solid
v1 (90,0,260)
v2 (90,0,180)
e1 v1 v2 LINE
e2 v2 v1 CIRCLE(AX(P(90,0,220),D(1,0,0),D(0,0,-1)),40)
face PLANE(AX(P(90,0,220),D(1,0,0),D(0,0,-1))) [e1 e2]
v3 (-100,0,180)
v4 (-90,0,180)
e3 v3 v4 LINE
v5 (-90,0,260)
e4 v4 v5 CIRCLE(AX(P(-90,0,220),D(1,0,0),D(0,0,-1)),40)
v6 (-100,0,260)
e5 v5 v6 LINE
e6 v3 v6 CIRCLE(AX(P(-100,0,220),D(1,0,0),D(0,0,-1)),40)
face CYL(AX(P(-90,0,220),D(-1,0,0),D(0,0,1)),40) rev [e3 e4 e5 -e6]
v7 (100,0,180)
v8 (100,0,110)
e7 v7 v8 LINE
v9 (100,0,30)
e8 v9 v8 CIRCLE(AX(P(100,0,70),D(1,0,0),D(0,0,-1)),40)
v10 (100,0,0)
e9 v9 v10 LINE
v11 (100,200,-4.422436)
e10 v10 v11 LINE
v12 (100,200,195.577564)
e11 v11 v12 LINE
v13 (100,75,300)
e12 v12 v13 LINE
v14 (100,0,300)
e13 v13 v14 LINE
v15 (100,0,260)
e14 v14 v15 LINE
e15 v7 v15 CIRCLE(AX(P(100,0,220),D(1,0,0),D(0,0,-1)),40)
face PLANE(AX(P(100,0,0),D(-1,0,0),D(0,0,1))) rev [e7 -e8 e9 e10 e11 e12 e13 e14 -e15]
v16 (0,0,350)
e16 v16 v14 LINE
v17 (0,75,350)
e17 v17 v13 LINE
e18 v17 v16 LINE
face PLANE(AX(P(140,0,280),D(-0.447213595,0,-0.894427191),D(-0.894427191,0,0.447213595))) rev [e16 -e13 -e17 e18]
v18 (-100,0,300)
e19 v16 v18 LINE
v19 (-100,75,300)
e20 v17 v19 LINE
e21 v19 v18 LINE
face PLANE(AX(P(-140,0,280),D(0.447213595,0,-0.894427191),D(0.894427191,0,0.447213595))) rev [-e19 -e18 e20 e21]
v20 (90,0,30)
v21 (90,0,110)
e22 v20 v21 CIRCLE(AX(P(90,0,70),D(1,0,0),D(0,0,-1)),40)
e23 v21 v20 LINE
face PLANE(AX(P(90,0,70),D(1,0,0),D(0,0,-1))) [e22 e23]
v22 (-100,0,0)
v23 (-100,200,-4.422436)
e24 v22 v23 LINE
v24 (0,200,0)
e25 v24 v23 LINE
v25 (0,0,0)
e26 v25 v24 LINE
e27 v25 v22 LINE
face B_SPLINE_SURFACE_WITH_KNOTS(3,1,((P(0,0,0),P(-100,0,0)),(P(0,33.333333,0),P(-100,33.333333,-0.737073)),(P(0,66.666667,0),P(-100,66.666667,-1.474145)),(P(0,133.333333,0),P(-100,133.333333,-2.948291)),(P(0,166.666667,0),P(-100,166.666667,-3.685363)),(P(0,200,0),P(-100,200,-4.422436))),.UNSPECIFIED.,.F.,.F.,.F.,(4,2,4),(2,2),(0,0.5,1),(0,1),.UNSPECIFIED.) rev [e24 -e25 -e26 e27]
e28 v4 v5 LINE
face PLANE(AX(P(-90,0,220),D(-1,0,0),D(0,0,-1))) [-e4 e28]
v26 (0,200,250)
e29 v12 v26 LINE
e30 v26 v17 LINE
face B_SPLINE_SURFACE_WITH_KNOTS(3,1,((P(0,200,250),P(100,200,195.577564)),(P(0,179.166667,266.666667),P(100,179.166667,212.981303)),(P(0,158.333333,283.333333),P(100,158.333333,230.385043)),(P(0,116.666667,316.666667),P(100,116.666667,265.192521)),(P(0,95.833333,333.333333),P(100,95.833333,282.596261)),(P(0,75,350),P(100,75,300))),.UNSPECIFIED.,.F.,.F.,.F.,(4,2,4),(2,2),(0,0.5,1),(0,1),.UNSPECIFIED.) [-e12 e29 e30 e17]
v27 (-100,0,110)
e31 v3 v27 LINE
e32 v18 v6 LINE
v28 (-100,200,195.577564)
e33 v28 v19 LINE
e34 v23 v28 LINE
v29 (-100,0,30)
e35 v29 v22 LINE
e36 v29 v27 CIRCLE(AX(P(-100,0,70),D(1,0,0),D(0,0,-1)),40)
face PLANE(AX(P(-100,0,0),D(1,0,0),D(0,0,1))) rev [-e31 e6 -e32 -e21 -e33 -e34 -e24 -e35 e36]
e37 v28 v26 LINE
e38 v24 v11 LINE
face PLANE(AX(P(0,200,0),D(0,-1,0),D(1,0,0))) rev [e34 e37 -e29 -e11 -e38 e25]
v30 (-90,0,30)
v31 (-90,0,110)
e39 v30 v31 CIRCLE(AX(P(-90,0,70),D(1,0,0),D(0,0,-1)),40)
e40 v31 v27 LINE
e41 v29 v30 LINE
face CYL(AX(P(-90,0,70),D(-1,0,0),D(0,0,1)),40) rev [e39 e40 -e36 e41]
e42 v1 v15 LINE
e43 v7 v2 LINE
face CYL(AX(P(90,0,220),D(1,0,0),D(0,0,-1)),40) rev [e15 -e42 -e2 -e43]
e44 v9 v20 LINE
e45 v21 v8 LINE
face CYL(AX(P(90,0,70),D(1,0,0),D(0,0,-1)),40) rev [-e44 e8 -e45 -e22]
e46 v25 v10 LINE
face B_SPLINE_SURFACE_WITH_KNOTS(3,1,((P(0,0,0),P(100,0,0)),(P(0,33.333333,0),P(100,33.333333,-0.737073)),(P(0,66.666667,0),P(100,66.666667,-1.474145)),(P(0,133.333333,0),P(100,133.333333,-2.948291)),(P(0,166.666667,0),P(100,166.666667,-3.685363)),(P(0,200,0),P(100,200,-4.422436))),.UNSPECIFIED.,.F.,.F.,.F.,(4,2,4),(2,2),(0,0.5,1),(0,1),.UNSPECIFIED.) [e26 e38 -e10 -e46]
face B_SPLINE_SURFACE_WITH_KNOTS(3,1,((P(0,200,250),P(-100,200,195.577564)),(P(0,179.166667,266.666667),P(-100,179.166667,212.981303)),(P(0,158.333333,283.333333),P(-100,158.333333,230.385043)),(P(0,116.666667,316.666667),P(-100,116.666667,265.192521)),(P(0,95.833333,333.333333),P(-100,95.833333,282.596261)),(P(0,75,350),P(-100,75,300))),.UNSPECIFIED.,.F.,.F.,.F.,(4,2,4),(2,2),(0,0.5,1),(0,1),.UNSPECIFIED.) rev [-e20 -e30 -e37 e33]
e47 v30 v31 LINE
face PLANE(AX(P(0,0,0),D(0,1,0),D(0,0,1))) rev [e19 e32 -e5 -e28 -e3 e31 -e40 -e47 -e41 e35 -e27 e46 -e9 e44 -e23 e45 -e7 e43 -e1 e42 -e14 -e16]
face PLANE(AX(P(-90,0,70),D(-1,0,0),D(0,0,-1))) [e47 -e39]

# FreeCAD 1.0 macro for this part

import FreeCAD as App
import Part
import Sketcher
Q = App.Units.Quantity

doc = App.newDocument("Part")
body = doc.addObject("PartDesign::Body", "Body")

# Sketch on YZ plane
sketch1 = body.newObject("Sketcher::SketchObject", "Sketch")
sketch1.AttachmentSupport = (doc.getObject("YZ_Plane"), [""])
sketch1.MapMode = "FlatFace"
sketch1.addGeometry(Part.LineSegment(App.Vector(0, 350, 0), App.Vector(0, 0, 0)), False)
sketch1.addGeometry(Part.LineSegment(App.Vector(0, 0, 0), App.Vector(200, 0, 0)), False)
sketch1.addGeometry(Part.LineSegment(App.Vector(200, 0, 0), App.Vector(200, 250, 0)), False)
sketch1.addGeometry(Part.LineSegment(App.Vector(200, 250, 0), App.Vector(75, 350, 0)), False)
sketch1.addGeometry(Part.LineSegment(App.Vector(75, 350, 0), App.Vector(0, 350, 0)), False)
sketch1.addConstraint(Sketcher.Constraint("Coincident", 0, 2, 1, 1))
sketch1.addConstraint(Sketcher.Constraint("Coincident", 1, 2, 2, 1))
sketch1.addConstraint(Sketcher.Constraint("Coincident", 2, 2, 3, 1))
sketch1.addConstraint(Sketcher.Constraint("Coincident", 3, 2, 4, 1))
sketch1.addConstraint(Sketcher.Constraint("Coincident", 4, 2, 0, 1))
sketch1.addConstraint(Sketcher.Constraint("Vertical", 0))
sketch1.addConstraint(Sketcher.Constraint("Horizontal", 1))
sketch1.addConstraint(Sketcher.Constraint("Vertical", 2))
sketch1.addConstraint(Sketcher.Constraint("Horizontal", 4))
sketch1.addConstraint(Sketcher.Constraint("Coincident", 0, 2, -1, 1))
sketch1.addConstraint(Sketcher.Constraint("DistanceX", 1, 1, 1, 2, Q("200 mm")))
sketch1.addConstraint(Sketcher.Constraint("DistanceX", 4, 2, 4, 1, Q("75 mm")))
sketch1.addConstraint(Sketcher.Constraint("DistanceY", 0, 2, 0, 1, Q("350 mm")))
sketch1.addConstraint(Sketcher.Constraint("DistanceY", 2, 1, 2, 2, Q("250 mm")))

# Sketch on YZ plane
sketch2 = body.newObject("Sketcher::SketchObject", "Sketch001")
sketch2.AttachmentSupport = (doc.getObject("YZ_Plane"), [""])
sketch2.MapMode = "FlatFace"
sketch2.AttachmentOffset = App.Placement(App.Vector(0, 0, 100), App.Rotation())
sketch2.addGeometry(Part.LineSegment(App.Vector(0, 0, 0), App.Vector(200, -4.422436, 0)), False)
sketch2.addGeometry(Part.LineSegment(App.Vector(200, -4.422436, 0), App.Vector(200, 195.577564, 0)), False)
sketch2.addGeometry(Part.LineSegment(App.Vector(200, 195.577564, 0), App.Vector(75, 300, 0)), False)
sketch2.addGeometry(Part.LineSegment(App.Vector(75, 300, 0), App.Vector(0, 300, 0)), False)
sketch2.addGeometry(Part.LineSegment(App.Vector(0, 300, 0), App.Vector(0, 0, 0)), False)
sketch2.addConstraint(Sketcher.Constraint("Coincident", 0, 2, 1, 1))
sketch2.addConstraint(Sketcher.Constraint("Coincident", 1, 2, 2, 1))
sketch2.addConstraint(Sketcher.Constraint("Coincident", 2, 2, 3, 1))
sketch2.addConstraint(Sketcher.Constraint("Coincident", 3, 2, 4, 1))
sketch2.addConstraint(Sketcher.Constraint("Coincident", 4, 2, 0, 1))
sketch2.addConstraint(Sketcher.Constraint("Vertical", 1))
sketch2.addConstraint(Sketcher.Constraint("Horizontal", 3))
sketch2.addConstraint(Sketcher.Constraint("Vertical", 4))
sketch2.addConstraint(Sketcher.Constraint("Coincident", 4, 2, -1, 1))
sketch2.addConstraint(Sketcher.Constraint("DistanceX", 3, 2, 3, 1, Q("75 mm")))
sketch2.addConstraint(Sketcher.Constraint("DistanceY", 1, 1, 1, 2, Q("200 mm")))
sketch2.addConstraint(Sketcher.Constraint("DistanceY", 4, 2, 4, 1, Q("300 mm")))
sketch2.addConstraint(Sketcher.Constraint("DistanceX", -1, 1, 0, 2, Q("200 mm")))
sketch2.addConstraint(Sketcher.Constraint("Distance", 0, Q("200.048889 mm")))

additiveloft = body.newObject("PartDesign::AdditiveLoft", "AdditiveLoft")
additiveloft.Profile = sketch1
additiveloft.Sections = [sketch2]

# Sketch on YZ plane
sketch3 = body.newObject("Sketcher::SketchObject", "Sketch002")
sketch3.AttachmentSupport = (doc.getObject("YZ_Plane"), [""])
sketch3.MapMode = "FlatFace"
sketch3.AttachmentOffset = App.Placement(App.Vector(0, 0, 100), App.Rotation())
sketch3.addGeometry(Part.Circle(App.Vector(0, 220, 0), App.Vector(0, 0, 1), 40), False)
sketch3.addGeometry(Part.Circle(App.Vector(0, 70, 0), App.Vector(0, 0, 1), 40), False)
sketch3.addConstraint(Sketcher.Constraint("Equal", 0, 1))
sketch3.addConstraint(Sketcher.Constraint("PointOnObject", 0, 3, -2))
sketch3.addConstraint(Sketcher.Constraint("PointOnObject", 1, 3, -2))
sketch3.addConstraint(Sketcher.Constraint("Diameter", 0, Q("80 mm")))
sketch3.addConstraint(Sketcher.Constraint("DistanceY", -1, 1, 0, 3, Q("220 mm")))
sketch3.addConstraint(Sketcher.Constraint("DistanceY", -1, 1, 1, 3, Q("70 mm")))
pocket1 = body.newObject("PartDesign::Pocket", "Pocket")
pocket1.Profile = sketch3
pocket1.Length = 10
doc.recompute()

mirrored = body.newObject("PartDesign::Mirrored", "Mirrored")
mirrored.Originals = [additiveloft, pocket1]
mirrored.MirrorPlane = (doc.getObject("YZ_Plane"), [""])
body.Tip = mirrored

doc.recompute()
